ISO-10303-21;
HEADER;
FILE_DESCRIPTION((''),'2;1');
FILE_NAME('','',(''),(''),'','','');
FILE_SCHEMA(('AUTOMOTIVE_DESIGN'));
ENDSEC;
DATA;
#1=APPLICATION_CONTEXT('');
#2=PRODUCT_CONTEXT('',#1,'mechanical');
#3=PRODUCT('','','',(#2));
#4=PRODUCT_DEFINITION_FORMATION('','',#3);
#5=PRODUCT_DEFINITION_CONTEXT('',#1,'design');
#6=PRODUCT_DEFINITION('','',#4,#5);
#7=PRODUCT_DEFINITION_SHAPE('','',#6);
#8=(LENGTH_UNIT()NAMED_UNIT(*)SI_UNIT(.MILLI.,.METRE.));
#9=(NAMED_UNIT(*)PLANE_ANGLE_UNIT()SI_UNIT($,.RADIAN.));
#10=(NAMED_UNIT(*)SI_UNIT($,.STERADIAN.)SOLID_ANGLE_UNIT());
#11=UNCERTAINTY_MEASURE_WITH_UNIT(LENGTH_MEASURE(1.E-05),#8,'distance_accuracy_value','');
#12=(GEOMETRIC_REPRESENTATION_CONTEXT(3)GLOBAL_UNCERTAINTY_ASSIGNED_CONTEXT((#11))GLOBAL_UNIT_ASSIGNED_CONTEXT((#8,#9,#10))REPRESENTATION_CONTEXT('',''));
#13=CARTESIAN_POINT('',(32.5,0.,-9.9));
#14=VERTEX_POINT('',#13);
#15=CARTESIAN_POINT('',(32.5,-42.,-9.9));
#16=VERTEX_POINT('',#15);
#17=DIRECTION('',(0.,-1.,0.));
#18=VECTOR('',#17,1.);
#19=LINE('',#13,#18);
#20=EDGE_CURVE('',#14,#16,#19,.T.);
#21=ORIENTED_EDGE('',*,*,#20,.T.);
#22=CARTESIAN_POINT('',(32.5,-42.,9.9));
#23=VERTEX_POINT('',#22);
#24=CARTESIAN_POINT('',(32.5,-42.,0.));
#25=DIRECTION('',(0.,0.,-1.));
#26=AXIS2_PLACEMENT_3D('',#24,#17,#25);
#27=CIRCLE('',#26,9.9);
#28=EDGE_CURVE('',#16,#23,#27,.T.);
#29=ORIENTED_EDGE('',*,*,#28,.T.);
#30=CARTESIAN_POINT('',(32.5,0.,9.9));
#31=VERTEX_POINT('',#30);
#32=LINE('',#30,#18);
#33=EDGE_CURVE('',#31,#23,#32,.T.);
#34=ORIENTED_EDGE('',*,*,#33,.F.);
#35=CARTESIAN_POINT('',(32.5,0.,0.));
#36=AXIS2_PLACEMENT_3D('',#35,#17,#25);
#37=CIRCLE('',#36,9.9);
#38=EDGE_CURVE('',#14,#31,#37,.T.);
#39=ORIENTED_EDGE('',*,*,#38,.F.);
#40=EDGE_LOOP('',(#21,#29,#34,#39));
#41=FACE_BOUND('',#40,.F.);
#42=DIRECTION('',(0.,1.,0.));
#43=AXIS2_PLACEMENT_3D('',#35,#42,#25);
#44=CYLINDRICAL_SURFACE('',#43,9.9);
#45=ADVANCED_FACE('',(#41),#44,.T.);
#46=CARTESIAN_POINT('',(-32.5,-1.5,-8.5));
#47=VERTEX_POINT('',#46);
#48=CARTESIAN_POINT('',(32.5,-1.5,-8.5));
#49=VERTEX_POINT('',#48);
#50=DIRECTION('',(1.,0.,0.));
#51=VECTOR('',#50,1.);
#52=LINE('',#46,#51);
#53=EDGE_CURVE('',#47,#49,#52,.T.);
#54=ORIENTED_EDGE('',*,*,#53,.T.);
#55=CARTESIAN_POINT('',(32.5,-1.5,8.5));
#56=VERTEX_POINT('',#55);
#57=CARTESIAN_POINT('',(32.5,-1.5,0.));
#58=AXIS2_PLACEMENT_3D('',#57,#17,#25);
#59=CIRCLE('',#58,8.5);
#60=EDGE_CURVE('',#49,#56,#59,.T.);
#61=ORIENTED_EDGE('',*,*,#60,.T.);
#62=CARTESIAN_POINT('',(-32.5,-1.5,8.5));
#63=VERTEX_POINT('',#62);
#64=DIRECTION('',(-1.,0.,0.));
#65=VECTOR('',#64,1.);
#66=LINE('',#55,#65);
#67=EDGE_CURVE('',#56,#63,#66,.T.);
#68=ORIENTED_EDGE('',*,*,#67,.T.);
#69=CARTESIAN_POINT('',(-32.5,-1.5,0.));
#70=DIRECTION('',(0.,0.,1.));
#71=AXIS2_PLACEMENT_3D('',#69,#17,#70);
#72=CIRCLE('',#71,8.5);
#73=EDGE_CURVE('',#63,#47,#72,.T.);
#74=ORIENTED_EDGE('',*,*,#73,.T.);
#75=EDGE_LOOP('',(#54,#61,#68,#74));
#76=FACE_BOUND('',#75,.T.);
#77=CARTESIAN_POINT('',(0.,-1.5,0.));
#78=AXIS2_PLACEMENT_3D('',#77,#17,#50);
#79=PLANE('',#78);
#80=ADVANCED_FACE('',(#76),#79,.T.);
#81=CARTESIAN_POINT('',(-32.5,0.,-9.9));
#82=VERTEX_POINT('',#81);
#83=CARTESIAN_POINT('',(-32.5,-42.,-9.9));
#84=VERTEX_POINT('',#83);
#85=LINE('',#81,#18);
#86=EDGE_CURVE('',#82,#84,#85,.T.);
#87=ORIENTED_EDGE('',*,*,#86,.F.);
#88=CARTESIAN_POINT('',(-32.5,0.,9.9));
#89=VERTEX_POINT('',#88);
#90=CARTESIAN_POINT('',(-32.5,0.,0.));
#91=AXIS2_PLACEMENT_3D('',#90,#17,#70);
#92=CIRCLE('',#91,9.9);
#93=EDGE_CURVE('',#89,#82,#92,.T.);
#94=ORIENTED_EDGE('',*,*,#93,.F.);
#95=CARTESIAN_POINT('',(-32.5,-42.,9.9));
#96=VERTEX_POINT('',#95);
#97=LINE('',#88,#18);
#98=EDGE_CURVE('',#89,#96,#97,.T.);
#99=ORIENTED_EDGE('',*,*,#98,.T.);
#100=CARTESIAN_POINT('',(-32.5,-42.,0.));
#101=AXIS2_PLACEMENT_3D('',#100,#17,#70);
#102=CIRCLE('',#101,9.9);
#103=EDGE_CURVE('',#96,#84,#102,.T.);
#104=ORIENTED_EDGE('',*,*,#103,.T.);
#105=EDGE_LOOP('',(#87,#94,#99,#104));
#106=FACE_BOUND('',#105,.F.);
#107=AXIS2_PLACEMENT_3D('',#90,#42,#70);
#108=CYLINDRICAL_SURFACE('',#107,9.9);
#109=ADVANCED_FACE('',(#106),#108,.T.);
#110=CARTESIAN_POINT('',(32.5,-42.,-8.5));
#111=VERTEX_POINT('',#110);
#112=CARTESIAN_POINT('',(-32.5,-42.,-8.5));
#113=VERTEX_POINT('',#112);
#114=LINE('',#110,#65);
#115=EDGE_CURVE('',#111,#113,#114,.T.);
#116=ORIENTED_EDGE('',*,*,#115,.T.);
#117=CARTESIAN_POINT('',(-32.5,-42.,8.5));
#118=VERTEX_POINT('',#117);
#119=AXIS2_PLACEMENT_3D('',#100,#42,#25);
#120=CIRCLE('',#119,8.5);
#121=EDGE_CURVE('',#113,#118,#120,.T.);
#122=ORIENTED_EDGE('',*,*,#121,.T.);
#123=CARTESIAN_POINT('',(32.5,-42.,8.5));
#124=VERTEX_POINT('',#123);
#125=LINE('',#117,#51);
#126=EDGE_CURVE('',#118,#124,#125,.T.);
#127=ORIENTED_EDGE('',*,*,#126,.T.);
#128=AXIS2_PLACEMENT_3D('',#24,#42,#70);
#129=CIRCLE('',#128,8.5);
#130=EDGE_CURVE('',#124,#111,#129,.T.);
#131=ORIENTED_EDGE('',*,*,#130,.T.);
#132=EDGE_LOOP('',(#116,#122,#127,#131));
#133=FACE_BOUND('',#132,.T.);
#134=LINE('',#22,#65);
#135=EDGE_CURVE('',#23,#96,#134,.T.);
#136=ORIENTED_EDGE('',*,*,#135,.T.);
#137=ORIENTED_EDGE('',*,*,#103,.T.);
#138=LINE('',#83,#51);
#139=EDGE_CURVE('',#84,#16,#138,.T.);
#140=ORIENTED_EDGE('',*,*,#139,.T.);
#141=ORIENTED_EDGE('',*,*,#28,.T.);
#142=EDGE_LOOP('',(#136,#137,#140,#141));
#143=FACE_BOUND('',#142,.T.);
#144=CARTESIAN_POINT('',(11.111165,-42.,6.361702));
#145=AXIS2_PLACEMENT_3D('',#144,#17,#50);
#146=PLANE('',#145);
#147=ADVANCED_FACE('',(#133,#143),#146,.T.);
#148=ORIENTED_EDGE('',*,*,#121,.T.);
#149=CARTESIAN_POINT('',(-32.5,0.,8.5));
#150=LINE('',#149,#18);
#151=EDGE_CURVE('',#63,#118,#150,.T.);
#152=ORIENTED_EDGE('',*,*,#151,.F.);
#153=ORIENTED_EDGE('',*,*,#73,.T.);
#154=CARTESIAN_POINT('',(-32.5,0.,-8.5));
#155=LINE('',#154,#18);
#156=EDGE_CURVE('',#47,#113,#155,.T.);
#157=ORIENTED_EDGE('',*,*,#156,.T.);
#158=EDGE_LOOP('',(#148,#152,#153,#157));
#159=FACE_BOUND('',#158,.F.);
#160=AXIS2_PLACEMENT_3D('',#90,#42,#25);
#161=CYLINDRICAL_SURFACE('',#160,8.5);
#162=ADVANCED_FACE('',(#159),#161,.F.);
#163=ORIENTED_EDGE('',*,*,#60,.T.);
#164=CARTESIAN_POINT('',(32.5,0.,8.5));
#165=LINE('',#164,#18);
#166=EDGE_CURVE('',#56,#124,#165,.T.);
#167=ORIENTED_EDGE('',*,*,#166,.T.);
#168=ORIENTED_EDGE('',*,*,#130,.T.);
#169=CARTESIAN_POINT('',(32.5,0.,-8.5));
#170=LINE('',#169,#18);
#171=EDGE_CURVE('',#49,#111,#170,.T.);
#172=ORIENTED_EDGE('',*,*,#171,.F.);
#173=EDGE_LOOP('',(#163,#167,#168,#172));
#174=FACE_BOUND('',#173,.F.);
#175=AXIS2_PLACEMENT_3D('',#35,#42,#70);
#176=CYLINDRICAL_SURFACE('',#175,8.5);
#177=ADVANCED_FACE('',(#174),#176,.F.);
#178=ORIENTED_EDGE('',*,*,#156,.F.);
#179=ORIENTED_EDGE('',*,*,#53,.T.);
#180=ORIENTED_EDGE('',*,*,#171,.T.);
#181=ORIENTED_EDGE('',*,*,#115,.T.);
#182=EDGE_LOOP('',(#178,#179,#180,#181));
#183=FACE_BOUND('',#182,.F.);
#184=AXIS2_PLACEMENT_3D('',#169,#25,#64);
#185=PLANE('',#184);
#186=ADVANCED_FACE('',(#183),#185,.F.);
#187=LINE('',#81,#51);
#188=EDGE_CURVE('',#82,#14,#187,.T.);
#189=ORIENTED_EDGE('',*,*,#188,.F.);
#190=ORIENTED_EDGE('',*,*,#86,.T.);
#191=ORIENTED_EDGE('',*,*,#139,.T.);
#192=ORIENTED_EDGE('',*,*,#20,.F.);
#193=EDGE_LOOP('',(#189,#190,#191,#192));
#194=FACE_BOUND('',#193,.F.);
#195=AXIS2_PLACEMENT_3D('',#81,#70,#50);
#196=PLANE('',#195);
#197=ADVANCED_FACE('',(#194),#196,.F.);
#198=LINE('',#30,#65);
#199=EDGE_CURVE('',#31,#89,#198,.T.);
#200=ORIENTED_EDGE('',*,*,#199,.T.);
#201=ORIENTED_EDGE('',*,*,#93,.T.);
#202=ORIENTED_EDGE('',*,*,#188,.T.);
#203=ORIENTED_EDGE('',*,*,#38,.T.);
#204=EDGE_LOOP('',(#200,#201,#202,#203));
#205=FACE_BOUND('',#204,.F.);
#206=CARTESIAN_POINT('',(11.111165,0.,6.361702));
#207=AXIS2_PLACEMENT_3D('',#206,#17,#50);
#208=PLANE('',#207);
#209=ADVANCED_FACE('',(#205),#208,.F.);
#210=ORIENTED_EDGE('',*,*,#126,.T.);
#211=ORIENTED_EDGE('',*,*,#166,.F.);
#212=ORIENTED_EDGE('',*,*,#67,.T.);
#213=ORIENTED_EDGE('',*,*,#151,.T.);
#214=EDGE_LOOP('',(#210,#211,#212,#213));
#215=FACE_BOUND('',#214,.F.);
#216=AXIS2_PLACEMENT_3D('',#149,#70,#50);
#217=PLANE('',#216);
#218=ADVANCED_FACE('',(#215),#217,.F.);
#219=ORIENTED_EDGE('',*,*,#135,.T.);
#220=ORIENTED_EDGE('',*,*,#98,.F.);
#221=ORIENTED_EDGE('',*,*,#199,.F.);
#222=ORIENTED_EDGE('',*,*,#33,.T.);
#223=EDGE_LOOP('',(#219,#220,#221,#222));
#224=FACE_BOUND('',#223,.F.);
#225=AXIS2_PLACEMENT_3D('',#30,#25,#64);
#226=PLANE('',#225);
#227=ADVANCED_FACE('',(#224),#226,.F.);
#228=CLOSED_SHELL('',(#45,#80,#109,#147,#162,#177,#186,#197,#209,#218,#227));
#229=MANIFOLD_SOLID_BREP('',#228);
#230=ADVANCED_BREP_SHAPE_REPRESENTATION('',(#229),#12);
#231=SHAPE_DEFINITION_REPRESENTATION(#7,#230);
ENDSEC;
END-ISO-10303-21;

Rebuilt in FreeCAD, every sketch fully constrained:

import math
import FreeCAD as App
import Part
import Sketcher
from FreeCAD import Vector
Q = App.Units.Quantity

doc = App.newDocument("Part")
body = doc.addObject("PartDesign::Body", "Body")

# Sketch on XZ plane
sketch1 = doc.addObject("Sketcher::SketchObject", "Sketch")
body.addObject(sketch1)
sketch1.AttachmentSupport = (doc.XZ_Plane, [""])
sketch1.MapMode = "FlatFace"
sketch1.addGeometry([
    Part.ArcOfCircle(Part.Circle(Vector(32, 0, 0), Vector(0, 0, 1), 8), math.radians(-90), math.radians(90)),
    Part.LineSegment(Vector(32, 8, 0), Vector(-32, 8, 0)),
    Part.ArcOfCircle(Part.Circle(Vector(-32, 0, 0), Vector(0, 0, 1), 8), math.radians(90), math.radians(270)),
    Part.LineSegment(Vector(-32, -8, 0), Vector(32, -8, 0)),
], False)
sketch1.addConstraint([
    Sketcher.Constraint("Tangent", 0, 2, 1, 1),
    Sketcher.Constraint("Tangent", 1, 2, 2, 1),
    Sketcher.Constraint("Tangent", 2, 2, 3, 1),
    Sketcher.Constraint("Tangent", 3, 2, 0, 1),
    Sketcher.Constraint("Horizontal", 1),
    Sketcher.Constraint("Horizontal", 3),
    Sketcher.Constraint("Symmetric", 0, 3, 2, 3, -1, 1),
    Sketcher.Constraint("Radius", 0, Q("8.5 mm")),
    Sketcher.Constraint("DistanceX", 1, 2, 1, 1, Q("65 mm")),
])
pad1 = doc.addObject("PartDesign::Pad", "Pad")
body.addObject(pad1)
pad1.Profile = sketch1
pad1.Length = 1.5

# Sketch on XZ plane
sketch2 = doc.addObject("Sketcher::SketchObject", "Sketch001")
body.addObject(sketch2)
sketch2.AttachmentSupport = (doc.XZ_Plane, [""])
sketch2.MapMode = "FlatFace"
sketch2.addGeometry([
    Part.LineSegment(Vector(32, 10, 0), Vector(-32, 10, 0)),  # 0
    Part.ArcOfCircle(Part.Circle(Vector(-32, 0, 0), Vector(0, 0, 1), 10), math.radians(90), math.radians(270)),  # 1
    Part.LineSegment(Vector(-32, -10, 0), Vector(32, -10, 0)),  # 2
    Part.ArcOfCircle(Part.Circle(Vector(32, 0, 0), Vector(0, 0, 1), 10), math.radians(-90), math.radians(90)),  # 3
    Part.LineSegment(Vector(-32, 8, 0), Vector(32, 8, 0)),  # 4
    Part.ArcOfCircle(Part.Circle(Vector(32, 0, 0), Vector(0, 0, 1), 8), math.radians(-90), math.radians(90)),  # 5
    Part.LineSegment(Vector(32, -8, 0), Vector(-32, -8, 0)),  # 6
    Part.ArcOfCircle(Part.Circle(Vector(-32, 0, 0), Vector(0, 0, 1), 8), math.radians(90), math.radians(270)),  # 7
], False)
sketch2.addConstraint([
    Sketcher.Constraint("Tangent", 0, 2, 1, 1),
    Sketcher.Constraint("Tangent", 1, 2, 2, 1),
    Sketcher.Constraint("Tangent", 2, 2, 3, 1),
    Sketcher.Constraint("Tangent", 3, 2, 0, 1),
    Sketcher.Constraint("Tangent", 4, 2, 5, 2),
    Sketcher.Constraint("Tangent", 5, 1, 6, 1),
    Sketcher.Constraint("Tangent", 6, 2, 7, 2),
    Sketcher.Constraint("Tangent", 7, 1, 4, 1),
    Sketcher.Constraint("Horizontal", 0),
    Sketcher.Constraint("Horizontal", 2),
    Sketcher.Constraint("Horizontal", 4),
    Sketcher.Constraint("Horizontal", 6),
    Sketcher.Constraint("Coincident", 5, 3, 3, 3),
    Sketcher.Constraint("Symmetric", 1, 3, 3, 3, -1, 1),
    Sketcher.Constraint("Vertical", 7, 3, 0, 2),
    Sketcher.Constraint("Radius", 1, Q("9.9 mm")),
    Sketcher.Constraint("Radius", 5, Q("8.5 mm")),
    Sketcher.Constraint("DistanceX", 0, 2, 0, 1, Q("65 mm")),
])
pad2 = doc.addObject("PartDesign::Pad", "Pad001")
body.addObject(pad2)
pad2.Profile = sketch2
pad2.Length = 42

doc.recompute()
